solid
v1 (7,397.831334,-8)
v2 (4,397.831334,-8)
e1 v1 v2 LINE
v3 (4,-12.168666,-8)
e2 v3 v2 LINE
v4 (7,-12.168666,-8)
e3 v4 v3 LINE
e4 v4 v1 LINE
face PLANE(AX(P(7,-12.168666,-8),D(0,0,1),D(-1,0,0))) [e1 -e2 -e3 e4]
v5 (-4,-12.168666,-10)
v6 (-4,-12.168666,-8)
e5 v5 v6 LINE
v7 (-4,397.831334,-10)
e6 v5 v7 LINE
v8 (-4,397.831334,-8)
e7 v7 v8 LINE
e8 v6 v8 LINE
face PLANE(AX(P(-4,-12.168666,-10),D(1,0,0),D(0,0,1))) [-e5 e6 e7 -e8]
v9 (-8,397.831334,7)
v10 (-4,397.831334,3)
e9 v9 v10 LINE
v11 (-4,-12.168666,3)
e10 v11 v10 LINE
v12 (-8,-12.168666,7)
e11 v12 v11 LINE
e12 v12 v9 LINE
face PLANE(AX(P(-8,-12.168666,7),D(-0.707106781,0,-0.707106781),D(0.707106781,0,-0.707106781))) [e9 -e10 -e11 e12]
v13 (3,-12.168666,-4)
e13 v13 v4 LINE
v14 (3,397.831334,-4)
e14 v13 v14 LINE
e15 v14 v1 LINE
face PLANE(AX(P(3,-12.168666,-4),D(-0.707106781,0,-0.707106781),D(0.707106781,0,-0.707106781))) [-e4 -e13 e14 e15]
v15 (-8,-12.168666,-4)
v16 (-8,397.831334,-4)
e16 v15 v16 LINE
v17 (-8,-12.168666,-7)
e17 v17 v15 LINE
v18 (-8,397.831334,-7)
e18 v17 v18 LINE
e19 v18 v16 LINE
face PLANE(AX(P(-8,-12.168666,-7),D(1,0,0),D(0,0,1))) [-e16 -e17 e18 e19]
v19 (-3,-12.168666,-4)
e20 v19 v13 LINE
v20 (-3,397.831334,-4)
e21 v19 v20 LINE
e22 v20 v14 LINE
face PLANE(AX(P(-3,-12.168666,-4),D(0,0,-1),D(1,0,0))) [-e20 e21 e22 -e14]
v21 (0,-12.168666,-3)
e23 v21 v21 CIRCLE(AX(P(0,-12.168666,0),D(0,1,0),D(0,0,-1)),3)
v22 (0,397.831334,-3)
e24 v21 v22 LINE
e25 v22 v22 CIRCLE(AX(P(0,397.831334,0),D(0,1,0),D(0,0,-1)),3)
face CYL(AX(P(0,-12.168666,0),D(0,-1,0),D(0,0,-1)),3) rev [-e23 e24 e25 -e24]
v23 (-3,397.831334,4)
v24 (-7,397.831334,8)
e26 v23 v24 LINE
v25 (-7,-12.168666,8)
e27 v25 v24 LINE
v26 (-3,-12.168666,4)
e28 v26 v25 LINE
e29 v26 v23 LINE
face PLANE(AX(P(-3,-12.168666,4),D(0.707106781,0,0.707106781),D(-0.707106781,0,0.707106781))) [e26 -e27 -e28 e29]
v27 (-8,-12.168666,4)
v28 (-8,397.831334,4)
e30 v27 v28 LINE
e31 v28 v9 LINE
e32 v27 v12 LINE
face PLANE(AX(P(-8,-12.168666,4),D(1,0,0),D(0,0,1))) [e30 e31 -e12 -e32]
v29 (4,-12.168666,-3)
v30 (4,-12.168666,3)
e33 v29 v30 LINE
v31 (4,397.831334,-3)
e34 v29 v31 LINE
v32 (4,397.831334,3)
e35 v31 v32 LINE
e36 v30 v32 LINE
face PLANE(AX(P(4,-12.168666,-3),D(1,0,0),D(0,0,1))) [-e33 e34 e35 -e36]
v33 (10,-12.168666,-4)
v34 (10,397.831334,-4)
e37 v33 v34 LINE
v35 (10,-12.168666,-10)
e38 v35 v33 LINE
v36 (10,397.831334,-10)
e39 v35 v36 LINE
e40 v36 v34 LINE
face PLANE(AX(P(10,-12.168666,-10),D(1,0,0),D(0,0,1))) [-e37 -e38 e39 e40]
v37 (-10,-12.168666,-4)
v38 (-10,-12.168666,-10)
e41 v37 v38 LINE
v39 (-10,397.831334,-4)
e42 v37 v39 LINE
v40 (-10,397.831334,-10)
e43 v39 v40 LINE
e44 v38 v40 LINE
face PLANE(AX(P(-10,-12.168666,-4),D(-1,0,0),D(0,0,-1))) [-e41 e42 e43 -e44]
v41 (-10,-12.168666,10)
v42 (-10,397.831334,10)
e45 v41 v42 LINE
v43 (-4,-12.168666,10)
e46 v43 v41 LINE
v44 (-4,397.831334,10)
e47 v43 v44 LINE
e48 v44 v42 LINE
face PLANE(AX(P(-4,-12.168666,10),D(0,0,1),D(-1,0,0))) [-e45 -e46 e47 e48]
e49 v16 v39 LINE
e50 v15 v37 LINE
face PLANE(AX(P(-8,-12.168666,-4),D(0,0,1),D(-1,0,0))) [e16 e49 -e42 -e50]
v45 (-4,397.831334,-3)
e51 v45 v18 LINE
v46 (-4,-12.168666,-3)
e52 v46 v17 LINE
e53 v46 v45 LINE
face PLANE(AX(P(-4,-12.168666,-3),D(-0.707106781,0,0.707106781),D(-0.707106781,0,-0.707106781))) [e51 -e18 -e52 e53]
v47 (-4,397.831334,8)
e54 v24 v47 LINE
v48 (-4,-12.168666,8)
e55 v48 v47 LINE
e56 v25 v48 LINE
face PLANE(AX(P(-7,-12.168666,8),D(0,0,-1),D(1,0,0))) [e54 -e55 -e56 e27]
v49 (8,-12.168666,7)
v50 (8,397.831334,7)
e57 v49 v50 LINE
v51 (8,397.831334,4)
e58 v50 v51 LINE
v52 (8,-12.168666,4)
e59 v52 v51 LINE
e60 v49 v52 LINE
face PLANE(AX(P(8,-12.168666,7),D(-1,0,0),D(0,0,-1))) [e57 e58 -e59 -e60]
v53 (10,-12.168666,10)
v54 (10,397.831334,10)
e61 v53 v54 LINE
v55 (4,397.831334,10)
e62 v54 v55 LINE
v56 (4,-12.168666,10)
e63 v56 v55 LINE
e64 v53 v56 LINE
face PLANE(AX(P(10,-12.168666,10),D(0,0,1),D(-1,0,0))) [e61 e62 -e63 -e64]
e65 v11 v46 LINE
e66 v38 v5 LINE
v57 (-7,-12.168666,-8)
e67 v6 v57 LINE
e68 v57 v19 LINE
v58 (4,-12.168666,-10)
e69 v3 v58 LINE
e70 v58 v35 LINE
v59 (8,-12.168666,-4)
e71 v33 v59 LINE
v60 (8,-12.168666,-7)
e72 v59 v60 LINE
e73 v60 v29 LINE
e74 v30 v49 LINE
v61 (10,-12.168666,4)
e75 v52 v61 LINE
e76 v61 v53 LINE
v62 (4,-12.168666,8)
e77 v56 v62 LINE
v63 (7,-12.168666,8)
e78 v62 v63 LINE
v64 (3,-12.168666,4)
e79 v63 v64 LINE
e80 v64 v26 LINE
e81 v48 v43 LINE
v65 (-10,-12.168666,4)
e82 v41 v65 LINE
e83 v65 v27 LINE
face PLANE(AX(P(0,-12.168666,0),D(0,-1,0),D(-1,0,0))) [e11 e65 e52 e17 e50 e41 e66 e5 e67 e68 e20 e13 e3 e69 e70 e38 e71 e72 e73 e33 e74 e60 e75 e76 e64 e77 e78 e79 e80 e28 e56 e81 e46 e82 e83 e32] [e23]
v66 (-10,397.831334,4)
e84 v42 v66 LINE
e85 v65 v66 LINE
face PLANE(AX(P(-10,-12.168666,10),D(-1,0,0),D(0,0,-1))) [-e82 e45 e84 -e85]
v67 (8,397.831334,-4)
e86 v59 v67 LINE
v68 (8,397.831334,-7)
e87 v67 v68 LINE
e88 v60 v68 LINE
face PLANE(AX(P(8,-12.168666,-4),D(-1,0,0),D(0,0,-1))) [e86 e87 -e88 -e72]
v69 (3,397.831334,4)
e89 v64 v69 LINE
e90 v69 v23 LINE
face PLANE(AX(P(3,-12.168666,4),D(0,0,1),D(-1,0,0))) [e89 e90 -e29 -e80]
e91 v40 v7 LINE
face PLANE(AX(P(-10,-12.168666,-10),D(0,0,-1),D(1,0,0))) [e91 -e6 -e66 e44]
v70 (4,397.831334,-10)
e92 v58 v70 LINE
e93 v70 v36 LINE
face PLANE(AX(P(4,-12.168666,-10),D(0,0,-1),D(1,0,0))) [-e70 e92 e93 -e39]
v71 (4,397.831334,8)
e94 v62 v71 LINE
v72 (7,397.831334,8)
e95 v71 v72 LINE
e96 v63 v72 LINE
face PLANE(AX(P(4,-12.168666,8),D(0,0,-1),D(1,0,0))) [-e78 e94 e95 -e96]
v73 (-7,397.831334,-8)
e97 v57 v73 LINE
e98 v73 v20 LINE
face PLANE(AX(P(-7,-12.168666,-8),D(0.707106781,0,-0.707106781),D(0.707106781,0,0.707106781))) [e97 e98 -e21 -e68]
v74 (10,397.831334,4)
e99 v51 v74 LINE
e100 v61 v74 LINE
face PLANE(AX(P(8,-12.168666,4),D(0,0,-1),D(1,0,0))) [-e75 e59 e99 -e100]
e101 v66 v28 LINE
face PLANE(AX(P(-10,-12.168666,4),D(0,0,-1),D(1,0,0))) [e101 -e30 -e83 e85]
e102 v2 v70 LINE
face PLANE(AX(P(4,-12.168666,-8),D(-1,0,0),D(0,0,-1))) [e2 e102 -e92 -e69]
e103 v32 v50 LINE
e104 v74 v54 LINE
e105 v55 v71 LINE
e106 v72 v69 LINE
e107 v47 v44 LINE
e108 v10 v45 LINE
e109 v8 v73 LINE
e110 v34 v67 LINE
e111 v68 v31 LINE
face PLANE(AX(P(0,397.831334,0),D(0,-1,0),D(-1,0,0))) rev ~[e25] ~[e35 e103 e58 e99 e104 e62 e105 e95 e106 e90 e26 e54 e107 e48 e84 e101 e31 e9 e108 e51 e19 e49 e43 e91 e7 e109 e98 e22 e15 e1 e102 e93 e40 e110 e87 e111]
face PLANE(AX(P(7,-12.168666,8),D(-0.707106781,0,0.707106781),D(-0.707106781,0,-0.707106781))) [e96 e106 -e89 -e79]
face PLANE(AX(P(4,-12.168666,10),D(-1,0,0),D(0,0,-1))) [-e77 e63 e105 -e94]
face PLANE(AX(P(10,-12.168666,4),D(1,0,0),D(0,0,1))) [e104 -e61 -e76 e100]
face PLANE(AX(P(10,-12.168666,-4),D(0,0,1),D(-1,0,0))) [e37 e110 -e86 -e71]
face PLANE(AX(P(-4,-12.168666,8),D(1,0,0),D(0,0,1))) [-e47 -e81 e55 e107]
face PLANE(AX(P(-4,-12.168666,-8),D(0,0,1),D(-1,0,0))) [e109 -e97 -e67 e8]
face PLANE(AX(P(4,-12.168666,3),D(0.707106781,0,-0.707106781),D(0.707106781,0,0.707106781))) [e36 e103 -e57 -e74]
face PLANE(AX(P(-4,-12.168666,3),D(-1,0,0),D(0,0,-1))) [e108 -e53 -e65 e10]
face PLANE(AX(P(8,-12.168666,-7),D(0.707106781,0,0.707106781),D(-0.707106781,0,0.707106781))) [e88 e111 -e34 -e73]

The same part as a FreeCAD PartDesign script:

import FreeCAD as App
import Part
import Sketcher

V = App.Vector


def add_polygon(sketch, points):
    """Adds a closed chain of lines whose ends are joined by coincident constraints."""
    first, n = sketch.GeometryCount, len(points)
    for a, b in zip(points, points[1:] + points[:1]):
        sketch.addGeometry(Part.LineSegment(App.Vector(*a, 0), App.Vector(*b, 0)), False)
    for i in range(n):
        sketch.addConstraint(Sketcher.Constraint("Coincident", first + i, 2, first + (i + 1) % n, 1))

doc = App.newDocument("Part")
body = doc.addObject("PartDesign::Body", "Body")

# Sketch on XZ plane
sketch1 = body.newObject("Sketcher::SketchObject", "Sketch")
sketch1.AttachmentSupport = (doc.getObject("XZ_Plane"), [""])
sketch1.MapMode = "FlatFace"
sketch1.AttachmentOffset = App.Placement(V(0, 0, 12.168666), App.Rotation())
add_polygon(sketch1, [(-4, -8), (-4, -10), (-10, -10), (-10, -4), (-8, -4), (-8, -7), (-4, -3), (-4, 3), (-8, 7), (-8, 4), (-10, 4), (-10, 10), (-4, 10), (-4, 8), (-7, 8), (-3, 4), (3, 4), (7, 8), (4, 8), (4, 10), (10, 10), (10, 4), (8, 4), (8, 7), (4, 3), (4, -3), (8, -7), (8, -4), (10, -4), (10, -10), (4, -10), (4, -8), (7, -8), (3, -4), (-3, -4), (-7, -8)])  # lines 0-35
sketch1.addGeometry(Part.Circle(V(0, 0, 0), V(0, 0, 1), 3), False)  # 36
sketch1.addConstraint(Sketcher.Constraint("Vertical", 0))
sketch1.addConstraint(Sketcher.Constraint("Horizontal", 1))
sketch1.addConstraint(Sketcher.Constraint("Vertical", 2))
sketch1.addConstraint(Sketcher.Constraint("Horizontal", 3))
sketch1.addConstraint(Sketcher.Constraint("Vertical", 4))
sketch1.addConstraint(Sketcher.Constraint("Vertical", 6))
sketch1.addConstraint(Sketcher.Constraint("Vertical", 8))
sketch1.addConstraint(Sketcher.Constraint("Horizontal", 9))
sketch1.addConstraint(Sketcher.Constraint("Vertical", 10))
sketch1.addConstraint(Sketcher.Constraint("Horizontal", 11))
sketch1.addConstraint(Sketcher.Constraint("Vertical", 12))
sketch1.addConstraint(Sketcher.Constraint("Horizontal", 13))
sketch1.addConstraint(Sketcher.Constraint("Horizontal", 15))
sketch1.addConstraint(Sketcher.Constraint("Horizontal", 17))
sketch1.addConstraint(Sketcher.Constraint("Vertical", 18))
sketch1.addConstraint(Sketcher.Constraint("Horizontal", 19))
sketch1.addConstraint(Sketcher.Constraint("Vertical", 20))
sketch1.addConstraint(Sketcher.Constraint("Horizontal", 21))
sketch1.addConstraint(Sketcher.Constraint("Vertical", 22))
sketch1.addConstraint(Sketcher.Constraint("Vertical", 24))
sketch1.addConstraint(Sketcher.Constraint("Vertical", 26))
sketch1.addConstraint(Sketcher.Constraint("Horizontal", 27))
sketch1.addConstraint(Sketcher.Constraint("Vertical", 28))
sketch1.addConstraint(Sketcher.Constraint("Horizontal", 29))
sketch1.addConstraint(Sketcher.Constraint("Vertical", 30))
sketch1.addConstraint(Sketcher.Constraint("Horizontal", 31))
sketch1.addConstraint(Sketcher.Constraint("Horizontal", 33))
sketch1.addConstraint(Sketcher.Constraint("Horizontal", 35))
sketch1.addConstraint(Sketcher.Constraint("Coincident", 36, 3, -1, 1))
sketch1.addConstraint(Sketcher.Constraint("Symmetric", 0, 2, 18, 2, -1, 1))
sketch1.addConstraint(Sketcher.Constraint("Symmetric", 2, 2, 20, 2, -1, 1))
sketch1.addConstraint(Sketcher.Constraint("Symmetric", 4, 2, 22, 2, -1, 1))
sketch1.addConstraint(Sketcher.Constraint("Symmetric", 5, 2, 23, 2, -1, 1))
sketch1.addConstraint(Sketcher.Constraint("Symmetric", 7, 2, 25, 2, -1, 1))
sketch1.addConstraint(Sketcher.Constraint("Symmetric", 9, 2, 27, 2, -1, 1))
sketch1.addConstraint(Sketcher.Constraint("Symmetric", 11, 2, 29, 2, -1, 1))
sketch1.addConstraint(Sketcher.Constraint("Symmetric", 13, 2, 31, 2, -1, 1))
sketch1.addConstraint(Sketcher.Constraint("Symmetric", 14, 2, 32, 2, -1, 1))
sketch1.addConstraint(Sketcher.Constraint("Symmetric", 16, 2, 34, 2, -1, 1))
sketch1.addConstraint(Sketcher.Constraint("Symmetric", 13, 2, 16, 2, -2))
sketch1.addConstraint(Sketcher.Constraint("Symmetric", 11, 2, 18, 2, -2))
sketch1.addConstraint(Sketcher.Constraint("Symmetric", 9, 2, 20, 2, -2))
sketch1.addConstraint(Sketcher.Constraint("Symmetric", 7, 2, 22, 2, -2))
sketch1.addConstraint(Sketcher.Constraint("Perpendicular", 5, 7))
sketch1.addConstraint(Sketcher.Constraint("Parallel", 7, 14))
sketch1.addConstraint(Sketcher.Constraint("Perpendicular", 14, 16))
sketch1.addConstraint(Sketcher.Constraint("Perpendicular", 23, 25))
sketch1.addConstraint(Sketcher.Constraint("Perpendicular", 32, 34))
sketch1.addConstraint(Sketcher.Constraint("Horizontal", 9, 2, 14, 2))
sketch1.addConstraint(Sketcher.Constraint("Horizontal", 6, 2, 23, 2))
sketch1.addConstraint(Sketcher.Constraint("Vertical", 0, 2, 5, 2))
sketch1.addConstraint(Sketcher.Constraint("Equal", 11, 15))
sketch1.addConstraint(Sketcher.Constraint("Equal", 27, 0))
sketch1.addConstraint(Sketcher.Constraint("Equal", 33, 2))
sketch1.addConstraint(Sketcher.Constraint("Equal", 35, 4))
sketch1.addConstraint(Sketcher.Constraint("Equal", 2, 6))
sketch1.addConstraint(Sketcher.Constraint("Diameter", 36, 6.0))
sketch1.addConstraint(Sketcher.Constraint("DistanceX", 1, 2, 1, 1, 6.0))
sketch1.addConstraint(Sketcher.Constraint("DistanceX", 3, 1, 3, 2, 2.0))
sketch1.addConstraint(Sketcher.Constraint("DistanceX", 13, 2, 13, 1, 3.0))
pad1 = body.newObject("PartDesign::Pad", "Pad")
pad1.Profile = sketch1
pad1.Length = 410
pad1.Reversed = True

doc.recompute()
